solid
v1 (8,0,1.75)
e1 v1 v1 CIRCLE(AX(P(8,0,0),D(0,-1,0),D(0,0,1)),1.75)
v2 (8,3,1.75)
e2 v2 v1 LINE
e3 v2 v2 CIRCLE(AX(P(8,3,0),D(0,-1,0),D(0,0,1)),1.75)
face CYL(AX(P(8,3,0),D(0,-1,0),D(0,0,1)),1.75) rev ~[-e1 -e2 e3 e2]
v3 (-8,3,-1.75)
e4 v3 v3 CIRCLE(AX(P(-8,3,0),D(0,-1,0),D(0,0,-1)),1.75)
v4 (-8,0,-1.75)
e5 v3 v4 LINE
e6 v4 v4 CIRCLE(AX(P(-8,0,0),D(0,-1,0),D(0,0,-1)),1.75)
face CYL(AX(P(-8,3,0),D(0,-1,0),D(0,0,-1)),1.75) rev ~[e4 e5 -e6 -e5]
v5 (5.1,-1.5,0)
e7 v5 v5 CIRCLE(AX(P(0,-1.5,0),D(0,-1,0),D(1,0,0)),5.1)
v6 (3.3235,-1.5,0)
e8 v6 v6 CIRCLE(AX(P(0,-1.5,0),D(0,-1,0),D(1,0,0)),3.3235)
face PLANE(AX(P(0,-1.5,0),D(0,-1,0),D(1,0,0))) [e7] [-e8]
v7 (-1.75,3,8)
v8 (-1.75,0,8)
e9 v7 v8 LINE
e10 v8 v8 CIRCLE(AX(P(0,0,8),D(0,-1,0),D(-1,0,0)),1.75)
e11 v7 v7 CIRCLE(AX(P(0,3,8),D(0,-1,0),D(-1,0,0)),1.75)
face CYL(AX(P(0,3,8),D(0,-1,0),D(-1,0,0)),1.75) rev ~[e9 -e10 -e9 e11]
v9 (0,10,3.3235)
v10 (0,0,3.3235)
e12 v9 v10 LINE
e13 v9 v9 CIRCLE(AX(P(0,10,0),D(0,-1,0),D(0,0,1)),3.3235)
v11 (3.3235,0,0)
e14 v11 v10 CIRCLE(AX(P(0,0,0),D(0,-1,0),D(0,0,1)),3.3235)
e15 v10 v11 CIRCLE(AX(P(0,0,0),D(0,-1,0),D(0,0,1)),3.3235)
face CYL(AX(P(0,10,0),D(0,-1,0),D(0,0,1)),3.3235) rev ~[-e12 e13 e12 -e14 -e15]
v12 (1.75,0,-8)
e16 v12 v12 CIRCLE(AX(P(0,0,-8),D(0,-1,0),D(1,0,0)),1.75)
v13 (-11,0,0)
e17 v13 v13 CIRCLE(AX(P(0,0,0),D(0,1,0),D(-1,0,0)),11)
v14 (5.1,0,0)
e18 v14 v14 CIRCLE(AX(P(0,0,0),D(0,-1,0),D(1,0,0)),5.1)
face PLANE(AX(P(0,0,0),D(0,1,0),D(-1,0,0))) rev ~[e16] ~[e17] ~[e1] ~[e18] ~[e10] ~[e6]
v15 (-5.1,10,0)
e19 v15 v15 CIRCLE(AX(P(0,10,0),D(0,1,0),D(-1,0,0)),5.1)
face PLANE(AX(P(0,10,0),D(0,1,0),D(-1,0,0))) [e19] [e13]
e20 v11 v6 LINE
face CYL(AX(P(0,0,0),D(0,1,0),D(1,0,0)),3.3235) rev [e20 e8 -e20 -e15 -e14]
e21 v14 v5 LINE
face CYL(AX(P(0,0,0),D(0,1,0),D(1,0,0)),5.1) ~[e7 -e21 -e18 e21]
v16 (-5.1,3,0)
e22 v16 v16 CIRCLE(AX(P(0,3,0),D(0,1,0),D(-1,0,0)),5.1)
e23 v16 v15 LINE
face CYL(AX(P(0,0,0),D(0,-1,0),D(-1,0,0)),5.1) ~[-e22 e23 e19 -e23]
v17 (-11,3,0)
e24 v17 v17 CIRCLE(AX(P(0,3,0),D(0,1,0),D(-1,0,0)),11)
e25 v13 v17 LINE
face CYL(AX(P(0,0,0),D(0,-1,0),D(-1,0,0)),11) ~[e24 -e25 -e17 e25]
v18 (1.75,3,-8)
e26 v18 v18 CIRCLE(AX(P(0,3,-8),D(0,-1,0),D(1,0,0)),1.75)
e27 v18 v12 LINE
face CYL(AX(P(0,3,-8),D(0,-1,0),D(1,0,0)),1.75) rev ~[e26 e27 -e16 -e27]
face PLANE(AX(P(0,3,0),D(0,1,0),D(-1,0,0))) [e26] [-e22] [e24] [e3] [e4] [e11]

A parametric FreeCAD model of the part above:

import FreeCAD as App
import Part
import Sketcher
Q = App.Units.Quantity

doc = App.newDocument("Part")
body = doc.addObject("PartDesign::Body", "Body")

sketch1 = body.newObject("Sketcher::SketchObject", "Sketch")
sketch1.AttachmentSupport = (doc.getObject("XZ_Plane"), [""])
sketch1.MapMode = "FlatFace"
sketch1.addGeometry([
    Part.Circle(App.Vector(0, 0, 0), App.Vector(0, 0, 1), 11),
    Part.Circle(App.Vector(0, 0, 0), App.Vector(0, 0, 1), 5),
], False)
sketch1.addConstraint([
    Sketcher.Constraint("Coincident", 0, 3, -1, 1),
    Sketcher.Constraint("Coincident", 1, 3, -1, 1),
    Sketcher.Constraint("Diameter", 0, Q("22 mm")),
    Sketcher.Constraint("Diameter", 1, Q("10.2 mm")),
])
pad1 = body.newObject("PartDesign::Pad", "Pad")
pad1.Profile = sketch1
pad1.Length = 3
pad1.Reversed = True

sketch2 = body.newObject("Sketcher::SketchObject", "Sketch001")
sketch2.AttachmentSupport = (doc.getObject("XZ_Plane"), [""])
sketch2.MapMode = "FlatFace"
sketch2.addGeometry(Part.Circle(App.Vector(0, 0, 0), App.Vector(0, 0, 1), 5), False)
sketch2.addConstraint([
    Sketcher.Constraint("Coincident", 0, 3, -1, 1),
    Sketcher.Constraint("Diameter", 0, Q("10.2 mm")),
])
pad2 = body.newObject("PartDesign::Pad", "Pad001")
pad2.Profile = sketch2
pad2.Length = 10
pad2.Reversed = True

sketch3 = body.newObject("Sketcher::SketchObject", "Sketch002")
sketch3.AttachmentSupport = (doc.getObject("XZ_Plane"), [""])
sketch3.MapMode = "FlatFace"
sketch3.AttachmentOffset = App.Placement(App.Vector(0, 0, -10), App.Rotation())
sketch3.addGeometry(Part.Circle(App.Vector(0, 0, 0), App.Vector(0, 0, 1), 3.3), False)
sketch3.addConstraint([
    Sketcher.Constraint("Coincident", 0, 3, -1, 1),
    Sketcher.Constraint("Diameter", 0, Q("6.647 mm")),
])
doc.recompute()
hole = body.newObject("PartDesign::Hole", "Hole")
hole.Profile = sketch3
hole.ThreadType = "None"
hole.Diameter = 6.647
hole.DepthType = "ThroughAll"
hole.Reversed = True

sketch4 = body.newObject("Sketcher::SketchObject", "Sketch003")
sketch4.AttachmentSupport = (doc.getObject("XZ_Plane"), [""])
sketch4.MapMode = "FlatFace"
sketch4.addGeometry([
    Part.Circle(App.Vector(0, 0, 0), App.Vector(0, 0, 1), 5.1),
    Part.Circle(App.Vector(0, 0, 0), App.Vector(0, 0, 1), 3.3),
], False)
sketch4.addConstraint([
    Sketcher.Constraint("Coincident", 0, 3, -1, 1),
    Sketcher.Constraint("Coincident", 1, 3, -1, 1),
    Sketcher.Constraint("Diameter", 0, Q("10.2 mm")),
    Sketcher.Constraint("Diameter", 1, Q("6.647 mm")),
])
pad3 = body.newObject("PartDesign::Pad", "Pad002")
pad3.Profile = sketch4
pad3.Length = 1.5

sketch5 = body.newObject("Sketcher::SketchObject", "Sketch004")
sketch5.AttachmentSupport = (doc.getObject("XZ_Plane"), [""])
sketch5.MapMode = "FlatFace"
sketch5.AttachmentOffset = App.Placement(App.Vector(0, 0, -3), App.Rotation())
sketch5.addGeometry(Part.Circle(App.Vector(8, 0, 0), App.Vector(0, 0, 1), 1.8), False)
sketch5.addConstraint([
    Sketcher.Constraint("PointOnObject", 0, 3, -1),
    Sketcher.Constraint("Diameter", 0, Q("3.5 mm")),
    Sketcher.Constraint("DistanceX", -1, 1, 0, 3, Q("8 mm")),
])
doc.recompute()
hole2 = body.newObject("PartDesign::Hole", "Hole001")
hole2.Profile = sketch5
hole2.ThreadType = "None"
hole2.Diameter = 3.5
hole2.DepthType = "ThroughAll"
hole2.Reversed = True
doc.recompute()

polarpattern = body.newObject("PartDesign::PolarPattern", "PolarPattern")
polarpattern.Originals = [hole2]
polarpattern.Axis = (doc.getObject("Y_Axis"), [""])
polarpattern.Angle = 360
polarpattern.Occurrences = 4
body.Tip = polarpattern

doc.recompute()
